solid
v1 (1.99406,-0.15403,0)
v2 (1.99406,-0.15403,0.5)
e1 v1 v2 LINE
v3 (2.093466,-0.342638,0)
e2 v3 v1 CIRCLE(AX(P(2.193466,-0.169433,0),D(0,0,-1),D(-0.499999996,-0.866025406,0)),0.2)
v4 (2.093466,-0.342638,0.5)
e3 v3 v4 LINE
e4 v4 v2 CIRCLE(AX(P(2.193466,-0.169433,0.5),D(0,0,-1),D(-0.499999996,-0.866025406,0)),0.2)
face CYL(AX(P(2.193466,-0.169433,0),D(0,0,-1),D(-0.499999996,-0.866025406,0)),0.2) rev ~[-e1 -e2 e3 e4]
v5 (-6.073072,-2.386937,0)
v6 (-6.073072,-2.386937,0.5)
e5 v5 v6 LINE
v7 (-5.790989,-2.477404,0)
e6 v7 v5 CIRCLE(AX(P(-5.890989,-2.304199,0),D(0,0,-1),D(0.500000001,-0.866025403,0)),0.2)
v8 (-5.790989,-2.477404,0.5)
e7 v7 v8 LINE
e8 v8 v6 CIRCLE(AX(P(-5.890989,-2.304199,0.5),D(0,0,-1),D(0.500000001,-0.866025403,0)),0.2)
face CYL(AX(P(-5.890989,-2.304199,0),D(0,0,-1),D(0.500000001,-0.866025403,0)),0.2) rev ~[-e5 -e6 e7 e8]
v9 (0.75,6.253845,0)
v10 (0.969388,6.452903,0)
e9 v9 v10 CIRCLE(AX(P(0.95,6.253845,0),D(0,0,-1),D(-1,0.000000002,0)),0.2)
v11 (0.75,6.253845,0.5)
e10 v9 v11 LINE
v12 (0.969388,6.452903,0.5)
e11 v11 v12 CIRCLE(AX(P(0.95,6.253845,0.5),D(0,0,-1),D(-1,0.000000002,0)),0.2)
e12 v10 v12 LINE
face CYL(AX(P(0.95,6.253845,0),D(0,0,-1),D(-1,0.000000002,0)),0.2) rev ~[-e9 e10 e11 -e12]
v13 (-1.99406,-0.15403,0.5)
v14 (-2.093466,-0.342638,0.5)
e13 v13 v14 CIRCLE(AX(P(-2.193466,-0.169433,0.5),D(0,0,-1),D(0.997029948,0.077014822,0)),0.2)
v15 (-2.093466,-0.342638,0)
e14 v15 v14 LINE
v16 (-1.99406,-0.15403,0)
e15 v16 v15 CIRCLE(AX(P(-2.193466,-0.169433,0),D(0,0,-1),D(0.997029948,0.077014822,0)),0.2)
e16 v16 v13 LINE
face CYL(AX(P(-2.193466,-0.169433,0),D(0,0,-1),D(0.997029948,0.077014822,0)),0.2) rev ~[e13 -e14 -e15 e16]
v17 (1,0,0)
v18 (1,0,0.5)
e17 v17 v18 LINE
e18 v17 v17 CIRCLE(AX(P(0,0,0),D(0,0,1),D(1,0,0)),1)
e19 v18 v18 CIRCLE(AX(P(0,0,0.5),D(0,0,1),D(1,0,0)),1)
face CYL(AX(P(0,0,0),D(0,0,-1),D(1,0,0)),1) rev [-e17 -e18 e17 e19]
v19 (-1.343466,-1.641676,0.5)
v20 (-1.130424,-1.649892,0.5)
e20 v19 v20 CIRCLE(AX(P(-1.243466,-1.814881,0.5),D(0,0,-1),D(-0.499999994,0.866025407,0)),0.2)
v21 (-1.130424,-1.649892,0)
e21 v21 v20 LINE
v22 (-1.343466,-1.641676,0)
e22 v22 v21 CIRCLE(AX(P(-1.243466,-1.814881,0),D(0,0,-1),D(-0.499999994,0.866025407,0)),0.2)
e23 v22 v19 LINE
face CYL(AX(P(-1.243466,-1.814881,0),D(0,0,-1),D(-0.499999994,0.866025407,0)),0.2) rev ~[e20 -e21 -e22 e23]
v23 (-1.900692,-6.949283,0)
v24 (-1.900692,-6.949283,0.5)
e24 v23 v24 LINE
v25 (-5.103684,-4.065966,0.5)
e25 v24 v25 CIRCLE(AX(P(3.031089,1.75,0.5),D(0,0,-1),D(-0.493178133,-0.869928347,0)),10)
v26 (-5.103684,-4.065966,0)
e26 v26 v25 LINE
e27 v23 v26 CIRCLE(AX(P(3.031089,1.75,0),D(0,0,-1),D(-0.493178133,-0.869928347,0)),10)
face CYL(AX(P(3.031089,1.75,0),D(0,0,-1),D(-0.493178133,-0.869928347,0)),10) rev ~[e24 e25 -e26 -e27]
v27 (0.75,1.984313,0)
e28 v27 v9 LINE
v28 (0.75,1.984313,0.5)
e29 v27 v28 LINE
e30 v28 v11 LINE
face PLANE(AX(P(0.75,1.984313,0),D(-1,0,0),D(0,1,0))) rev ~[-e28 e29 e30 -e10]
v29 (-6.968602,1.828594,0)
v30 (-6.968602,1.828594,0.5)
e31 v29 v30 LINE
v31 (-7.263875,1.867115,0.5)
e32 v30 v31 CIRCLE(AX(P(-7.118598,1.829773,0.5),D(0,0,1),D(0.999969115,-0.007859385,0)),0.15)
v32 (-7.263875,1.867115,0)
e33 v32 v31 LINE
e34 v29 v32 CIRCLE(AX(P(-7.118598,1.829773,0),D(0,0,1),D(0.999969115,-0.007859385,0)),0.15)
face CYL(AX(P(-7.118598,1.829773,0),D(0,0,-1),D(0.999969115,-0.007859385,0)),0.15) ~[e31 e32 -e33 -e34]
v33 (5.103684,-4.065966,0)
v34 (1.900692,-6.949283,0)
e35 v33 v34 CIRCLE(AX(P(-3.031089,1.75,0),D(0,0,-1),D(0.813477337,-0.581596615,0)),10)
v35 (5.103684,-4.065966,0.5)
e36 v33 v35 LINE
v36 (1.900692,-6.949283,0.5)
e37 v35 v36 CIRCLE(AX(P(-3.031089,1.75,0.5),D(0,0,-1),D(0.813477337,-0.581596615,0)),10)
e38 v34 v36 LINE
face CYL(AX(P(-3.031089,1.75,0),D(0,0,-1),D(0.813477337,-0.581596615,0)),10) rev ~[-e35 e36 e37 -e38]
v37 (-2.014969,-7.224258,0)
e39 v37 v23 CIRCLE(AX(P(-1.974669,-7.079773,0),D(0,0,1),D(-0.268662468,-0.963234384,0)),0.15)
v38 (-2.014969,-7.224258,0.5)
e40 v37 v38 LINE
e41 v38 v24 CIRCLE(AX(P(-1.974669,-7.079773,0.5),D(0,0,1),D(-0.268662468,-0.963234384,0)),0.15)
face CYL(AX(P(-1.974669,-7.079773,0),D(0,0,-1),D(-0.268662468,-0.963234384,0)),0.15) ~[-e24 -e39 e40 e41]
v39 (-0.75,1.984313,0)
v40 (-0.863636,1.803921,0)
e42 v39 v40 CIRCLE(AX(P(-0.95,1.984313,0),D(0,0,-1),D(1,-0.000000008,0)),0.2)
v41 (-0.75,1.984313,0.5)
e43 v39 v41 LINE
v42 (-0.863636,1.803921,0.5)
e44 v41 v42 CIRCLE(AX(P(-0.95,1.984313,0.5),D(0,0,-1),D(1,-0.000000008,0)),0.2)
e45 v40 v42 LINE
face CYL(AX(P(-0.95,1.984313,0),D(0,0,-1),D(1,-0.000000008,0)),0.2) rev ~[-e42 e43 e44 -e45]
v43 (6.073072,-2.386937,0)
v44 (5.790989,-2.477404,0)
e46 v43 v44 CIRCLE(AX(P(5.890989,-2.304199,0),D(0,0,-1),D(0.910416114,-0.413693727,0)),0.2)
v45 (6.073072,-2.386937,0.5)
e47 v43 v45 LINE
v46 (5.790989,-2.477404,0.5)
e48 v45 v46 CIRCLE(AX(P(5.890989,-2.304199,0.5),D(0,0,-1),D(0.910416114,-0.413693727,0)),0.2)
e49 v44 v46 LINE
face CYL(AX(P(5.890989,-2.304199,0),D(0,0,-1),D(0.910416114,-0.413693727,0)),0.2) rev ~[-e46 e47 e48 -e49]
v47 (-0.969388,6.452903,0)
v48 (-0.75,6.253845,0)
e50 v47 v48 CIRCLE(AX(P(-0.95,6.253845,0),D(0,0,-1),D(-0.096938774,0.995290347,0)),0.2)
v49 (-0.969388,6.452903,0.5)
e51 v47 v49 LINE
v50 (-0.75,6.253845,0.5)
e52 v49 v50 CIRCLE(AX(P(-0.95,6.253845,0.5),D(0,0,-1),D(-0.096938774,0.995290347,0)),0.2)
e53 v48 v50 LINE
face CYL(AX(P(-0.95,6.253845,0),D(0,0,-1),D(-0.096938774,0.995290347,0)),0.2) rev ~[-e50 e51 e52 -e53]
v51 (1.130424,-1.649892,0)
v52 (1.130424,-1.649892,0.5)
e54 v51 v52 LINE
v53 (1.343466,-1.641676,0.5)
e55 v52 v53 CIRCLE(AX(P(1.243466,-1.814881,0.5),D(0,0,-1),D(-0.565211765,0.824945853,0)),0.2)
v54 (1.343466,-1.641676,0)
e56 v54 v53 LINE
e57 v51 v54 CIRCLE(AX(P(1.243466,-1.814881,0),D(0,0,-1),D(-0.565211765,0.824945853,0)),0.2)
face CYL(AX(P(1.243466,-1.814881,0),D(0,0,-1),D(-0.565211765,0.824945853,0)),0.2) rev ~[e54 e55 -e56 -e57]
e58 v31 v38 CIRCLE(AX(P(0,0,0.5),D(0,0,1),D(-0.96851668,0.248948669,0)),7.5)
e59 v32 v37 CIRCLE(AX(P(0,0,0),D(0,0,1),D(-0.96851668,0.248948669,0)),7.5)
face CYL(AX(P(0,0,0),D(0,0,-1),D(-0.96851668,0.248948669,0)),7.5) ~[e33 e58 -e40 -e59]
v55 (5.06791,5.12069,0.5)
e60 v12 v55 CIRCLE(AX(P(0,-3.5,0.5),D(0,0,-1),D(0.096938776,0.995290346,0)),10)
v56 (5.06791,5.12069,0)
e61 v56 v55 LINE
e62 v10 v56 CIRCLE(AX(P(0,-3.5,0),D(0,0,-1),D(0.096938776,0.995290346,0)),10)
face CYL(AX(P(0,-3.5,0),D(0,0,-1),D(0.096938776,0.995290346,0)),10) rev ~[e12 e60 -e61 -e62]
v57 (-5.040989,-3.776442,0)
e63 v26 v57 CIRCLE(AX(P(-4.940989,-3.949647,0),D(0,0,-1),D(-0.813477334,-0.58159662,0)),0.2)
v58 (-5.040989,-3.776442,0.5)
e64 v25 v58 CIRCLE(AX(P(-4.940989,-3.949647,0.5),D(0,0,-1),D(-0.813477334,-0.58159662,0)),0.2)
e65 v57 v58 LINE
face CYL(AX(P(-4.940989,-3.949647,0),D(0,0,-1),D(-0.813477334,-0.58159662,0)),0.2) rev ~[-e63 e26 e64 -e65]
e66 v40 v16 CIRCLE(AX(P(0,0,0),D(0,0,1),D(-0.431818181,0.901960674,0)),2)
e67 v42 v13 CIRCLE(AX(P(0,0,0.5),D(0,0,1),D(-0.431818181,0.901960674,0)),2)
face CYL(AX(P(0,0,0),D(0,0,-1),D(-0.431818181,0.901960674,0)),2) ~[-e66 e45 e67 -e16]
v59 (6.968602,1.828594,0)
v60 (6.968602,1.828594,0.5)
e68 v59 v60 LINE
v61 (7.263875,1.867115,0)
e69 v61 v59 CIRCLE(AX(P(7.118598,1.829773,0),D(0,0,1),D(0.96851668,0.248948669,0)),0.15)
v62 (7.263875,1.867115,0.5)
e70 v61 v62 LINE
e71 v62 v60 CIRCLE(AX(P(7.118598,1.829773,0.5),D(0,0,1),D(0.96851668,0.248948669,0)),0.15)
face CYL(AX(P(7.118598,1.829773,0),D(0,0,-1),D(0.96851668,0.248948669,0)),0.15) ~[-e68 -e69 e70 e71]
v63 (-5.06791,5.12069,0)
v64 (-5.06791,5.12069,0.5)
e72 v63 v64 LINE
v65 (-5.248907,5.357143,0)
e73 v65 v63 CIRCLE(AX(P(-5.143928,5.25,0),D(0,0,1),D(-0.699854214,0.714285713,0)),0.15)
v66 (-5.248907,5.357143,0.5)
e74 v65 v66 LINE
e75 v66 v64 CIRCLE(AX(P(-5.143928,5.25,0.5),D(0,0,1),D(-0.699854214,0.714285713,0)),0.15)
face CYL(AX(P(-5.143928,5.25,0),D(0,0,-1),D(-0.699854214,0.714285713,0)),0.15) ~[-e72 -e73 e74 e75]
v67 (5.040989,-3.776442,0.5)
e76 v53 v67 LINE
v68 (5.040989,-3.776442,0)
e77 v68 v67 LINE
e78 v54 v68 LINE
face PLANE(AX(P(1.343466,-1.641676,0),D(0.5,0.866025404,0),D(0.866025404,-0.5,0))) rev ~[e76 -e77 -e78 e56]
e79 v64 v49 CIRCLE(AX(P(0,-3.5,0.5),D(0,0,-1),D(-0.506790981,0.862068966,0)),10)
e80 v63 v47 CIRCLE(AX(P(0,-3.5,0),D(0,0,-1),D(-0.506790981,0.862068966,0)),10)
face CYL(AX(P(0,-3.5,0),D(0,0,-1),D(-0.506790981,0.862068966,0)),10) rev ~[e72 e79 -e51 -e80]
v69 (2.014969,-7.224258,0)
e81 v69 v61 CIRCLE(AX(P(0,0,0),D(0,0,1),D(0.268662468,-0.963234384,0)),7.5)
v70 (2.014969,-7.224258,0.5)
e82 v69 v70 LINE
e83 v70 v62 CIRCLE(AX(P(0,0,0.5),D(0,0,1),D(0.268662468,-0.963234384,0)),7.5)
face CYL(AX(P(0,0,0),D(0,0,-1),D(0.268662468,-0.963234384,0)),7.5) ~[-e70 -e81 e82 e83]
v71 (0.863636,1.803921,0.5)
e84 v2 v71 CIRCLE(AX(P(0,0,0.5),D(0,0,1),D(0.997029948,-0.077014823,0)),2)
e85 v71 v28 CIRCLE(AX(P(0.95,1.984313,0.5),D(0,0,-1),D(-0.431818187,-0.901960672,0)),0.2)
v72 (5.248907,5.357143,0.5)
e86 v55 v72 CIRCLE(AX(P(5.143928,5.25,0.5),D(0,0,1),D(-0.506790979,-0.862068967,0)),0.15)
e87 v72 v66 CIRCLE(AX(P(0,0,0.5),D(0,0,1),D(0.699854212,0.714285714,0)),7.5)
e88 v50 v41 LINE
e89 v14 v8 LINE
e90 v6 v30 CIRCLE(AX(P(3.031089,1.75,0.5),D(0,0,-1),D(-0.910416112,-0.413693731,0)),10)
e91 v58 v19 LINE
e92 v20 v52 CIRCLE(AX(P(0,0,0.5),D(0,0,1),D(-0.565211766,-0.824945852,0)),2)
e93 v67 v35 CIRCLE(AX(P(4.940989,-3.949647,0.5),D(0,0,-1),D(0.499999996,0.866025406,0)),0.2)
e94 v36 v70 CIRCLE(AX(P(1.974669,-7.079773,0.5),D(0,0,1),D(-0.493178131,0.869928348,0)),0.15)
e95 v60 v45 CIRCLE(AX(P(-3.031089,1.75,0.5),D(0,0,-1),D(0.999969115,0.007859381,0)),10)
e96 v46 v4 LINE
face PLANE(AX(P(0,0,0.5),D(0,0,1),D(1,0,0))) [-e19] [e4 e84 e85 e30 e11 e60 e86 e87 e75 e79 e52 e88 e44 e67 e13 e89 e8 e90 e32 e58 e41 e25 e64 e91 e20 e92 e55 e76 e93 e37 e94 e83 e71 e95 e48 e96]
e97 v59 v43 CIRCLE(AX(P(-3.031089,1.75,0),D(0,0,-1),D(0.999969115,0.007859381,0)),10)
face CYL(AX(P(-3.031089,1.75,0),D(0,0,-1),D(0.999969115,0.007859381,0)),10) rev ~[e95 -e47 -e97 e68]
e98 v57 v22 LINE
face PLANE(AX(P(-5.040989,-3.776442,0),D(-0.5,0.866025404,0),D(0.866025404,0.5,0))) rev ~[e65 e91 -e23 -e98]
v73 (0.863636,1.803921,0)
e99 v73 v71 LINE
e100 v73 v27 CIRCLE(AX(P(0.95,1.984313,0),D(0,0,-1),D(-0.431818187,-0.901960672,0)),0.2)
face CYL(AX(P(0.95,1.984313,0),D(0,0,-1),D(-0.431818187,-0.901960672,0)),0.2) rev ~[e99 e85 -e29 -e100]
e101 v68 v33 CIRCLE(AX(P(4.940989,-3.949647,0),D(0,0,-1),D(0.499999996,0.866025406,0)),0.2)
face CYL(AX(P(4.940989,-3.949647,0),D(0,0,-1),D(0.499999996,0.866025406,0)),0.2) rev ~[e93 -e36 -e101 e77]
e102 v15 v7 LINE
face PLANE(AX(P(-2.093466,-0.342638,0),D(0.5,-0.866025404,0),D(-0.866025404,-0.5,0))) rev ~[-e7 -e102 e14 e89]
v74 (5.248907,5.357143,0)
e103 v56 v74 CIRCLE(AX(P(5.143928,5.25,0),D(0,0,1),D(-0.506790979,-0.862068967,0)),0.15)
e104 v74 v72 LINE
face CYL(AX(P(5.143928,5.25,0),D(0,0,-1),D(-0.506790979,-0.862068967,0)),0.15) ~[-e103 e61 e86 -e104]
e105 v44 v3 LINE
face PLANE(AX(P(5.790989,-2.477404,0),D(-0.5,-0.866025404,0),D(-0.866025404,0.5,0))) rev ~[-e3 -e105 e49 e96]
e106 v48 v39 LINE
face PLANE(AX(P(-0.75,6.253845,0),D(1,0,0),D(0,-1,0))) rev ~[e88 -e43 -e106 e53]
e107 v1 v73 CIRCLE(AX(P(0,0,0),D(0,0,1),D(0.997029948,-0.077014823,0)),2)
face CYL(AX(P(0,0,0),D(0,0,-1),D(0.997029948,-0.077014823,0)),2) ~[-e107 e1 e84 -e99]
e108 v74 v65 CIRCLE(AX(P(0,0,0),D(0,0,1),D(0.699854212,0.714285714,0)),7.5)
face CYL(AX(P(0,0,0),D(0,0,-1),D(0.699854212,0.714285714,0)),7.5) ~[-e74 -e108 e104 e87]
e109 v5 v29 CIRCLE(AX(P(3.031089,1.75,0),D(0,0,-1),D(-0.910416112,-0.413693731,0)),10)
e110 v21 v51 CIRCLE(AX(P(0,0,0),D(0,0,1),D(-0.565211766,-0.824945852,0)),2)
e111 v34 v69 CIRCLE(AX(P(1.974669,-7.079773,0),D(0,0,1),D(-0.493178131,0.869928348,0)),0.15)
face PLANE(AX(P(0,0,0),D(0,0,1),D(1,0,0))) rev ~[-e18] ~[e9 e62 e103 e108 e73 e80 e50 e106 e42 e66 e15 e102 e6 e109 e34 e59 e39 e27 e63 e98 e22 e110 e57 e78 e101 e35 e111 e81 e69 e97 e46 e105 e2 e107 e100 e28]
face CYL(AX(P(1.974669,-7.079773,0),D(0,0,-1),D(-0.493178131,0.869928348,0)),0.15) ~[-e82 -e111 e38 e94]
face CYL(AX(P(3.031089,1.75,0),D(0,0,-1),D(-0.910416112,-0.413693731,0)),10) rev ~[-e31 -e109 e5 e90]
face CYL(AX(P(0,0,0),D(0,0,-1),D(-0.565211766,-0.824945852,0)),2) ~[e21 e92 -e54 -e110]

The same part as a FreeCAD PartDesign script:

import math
import FreeCAD as App
import Part
import Sketcher
Q = App.Units.Quantity

doc = App.newDocument("Part")
params = doc.addObject("Spreadsheet::Sheet", "Params")
for row, (alias, value) in enumerate([
    ("sketch1_diameter", "2 mm"),
    ("sketch1_radius", "2 mm"),
    ("sketch1_radius2", "10 mm"),
    ("sketch1_radius3", "0.2 mm"),
    ("sketch1_radius4", "7.5 mm"),
    ("pad1_length", "0.5 mm"),
], start=1):
    params.set(f"A{row}", alias)
    params.set(f"B{row}", "=" + value)
    params.setAlias(f"B{row}", alias)

body = doc.addObject("PartDesign::Body", "Body")

# Sketch on XY plane
sketch1 = doc.addObject("Sketcher::SketchObject", "Sketch")
body.addObject(sketch1)
sketch1.AttachmentSupport = (doc.XY_Plane, [""])
sketch1.MapMode = "FlatFace"
sketch1.addGeometry([
    Part.LineSegment(App.Vector(-0.75, 6.253845, 0), App.Vector(-0.75, 1.984313, 0)),  # 0
    Part.ArcOfCircle(Part.Circle(App.Vector(-0.95, 1.984313, 0), App.Vector(0, 0, 1), 0.2), math.radians(-64.416998), math.radians(-0.000001)),  # 1
    Part.ArcOfCircle(Part.Circle(App.Vector(0, 0, 0), App.Vector(0, 0, 1), 2), math.radians(115.583002), math.radians(184.416998)),  # 2
    Part.ArcOfCircle(Part.Circle(App.Vector(-2.193466, -0.169433, 0), App.Vector(0, 0, 1), 0.2), math.radians(-60), math.radians(4.416998)),  # 3
    Part.LineSegment(App.Vector(-2.093466, -0.342638, 0), App.Vector(-5.790989, -2.477404, 0)),  # 4
    Part.ArcOfCircle(Part.Circle(App.Vector(-5.890989, -2.304199, 0), App.Vector(0, 0, 1), 0.2), math.radians(-155.562919), math.radians(-60)),  # 5
    Part.ArcOfCircle(Part.Circle(App.Vector(3.031089, 1.75, 0), App.Vector(0, 0, 1), 10), math.radians(179.549686), math.radians(204.437081)),  # 6
    Part.ArcOfCircle(Part.Circle(App.Vector(-7.118598, 1.829773, 0), App.Vector(0, 0, 1), 0.15), math.radians(-0.450314), math.radians(165.584692)),  # 7
    Part.ArcOfCircle(Part.Circle(App.Vector(0, 0, 0), App.Vector(0, 0, 1), 7.5), math.radians(165.584691), math.radians(254.415309)),  # 8
    Part.ArcOfCircle(Part.Circle(App.Vector(-1.974669, -7.079773, 0), App.Vector(0, 0, 1), 0.15), math.radians(-105.584691), math.radians(60.450314)),  # 9
    Part.ArcOfCircle(Part.Circle(App.Vector(3.031089, 1.75, 0), App.Vector(0, 0, 1), 10), math.radians(-144.437081), math.radians(-119.549686)),  # 10
    Part.ArcOfCircle(Part.Circle(App.Vector(-4.940989, -3.949647, 0), App.Vector(0, 0, 1), 0.2), math.radians(120), math.radians(215.562919)),  # 11
    Part.LineSegment(App.Vector(-5.040989, -3.776442, 0), App.Vector(-1.343466, -1.641676, 0)),  # 12
    Part.ArcOfCircle(Part.Circle(App.Vector(-1.243466, -1.814881, 0), App.Vector(0, 0, 1), 0.2), math.radians(55.583002), math.radians(120)),  # 13
    Part.ArcOfCircle(Part.Circle(App.Vector(0, 0, 0), App.Vector(0, 0, 1), 2), math.radians(-124.416998), math.radians(-55.583002)),  # 14
    Part.ArcOfCircle(Part.Circle(App.Vector(1.243466, -1.814881, 0), App.Vector(0, 0, 1), 0.2), math.radians(60), math.radians(124.416998)),  # 15
    Part.LineSegment(App.Vector(1.343466, -1.641676, 0), App.Vector(5.040989, -3.776442, 0)),  # 16
    Part.ArcOfCircle(Part.Circle(App.Vector(4.940989, -3.949647, 0), App.Vector(0, 0, 1), 0.2), math.radians(-35.562919), math.radians(60)),  # 17
    Part.ArcOfCircle(Part.Circle(App.Vector(-3.031089, 1.75, 0), App.Vector(0, 0, 1), 10), math.radians(-60.450314), math.radians(-35.562919)),  # 18
    Part.ArcOfCircle(Part.Circle(App.Vector(1.974669, -7.079773, 0), App.Vector(0, 0, 1), 0.15), math.radians(119.549686), math.radians(285.584691)),  # 19
    Part.ArcOfCircle(Part.Circle(App.Vector(0, 0, 0), App.Vector(0, 0, 1), 7.5), math.radians(-74.415309), math.radians(14.415309)),  # 20
    Part.ArcOfCircle(Part.Circle(App.Vector(7.118598, 1.829773, 0), App.Vector(0, 0, 1), 0.15), math.radians(14.415308), math.radians(180.450314)),  # 21
    Part.ArcOfCircle(Part.Circle(App.Vector(-3.031089, 1.75, 0), App.Vector(0, 0, 1), 10), math.radians(-24.437081), math.radians(0.450314)),  # 22
    Part.ArcOfCircle(Part.Circle(App.Vector(5.890989, -2.304199, 0), App.Vector(0, 0, 1), 0.2), math.radians(-120), math.radians(-24.437081)),  # 23
    Part.LineSegment(App.Vector(5.790989, -2.477404, 0), App.Vector(2.093466, -0.342638, 0)),  # 24
    Part.ArcOfCircle(Part.Circle(App.Vector(2.193466, -0.169433, 0), App.Vector(0, 0, 1), 0.2), math.radians(175.583002), math.radians(240)),  # 25
    Part.ArcOfCircle(Part.Circle(App.Vector(0, 0, 0), App.Vector(0, 0, 1), 2), math.radians(-4.416998), math.radians(64.416998)),  # 26
    Part.ArcOfCircle(Part.Circle(App.Vector(0.95, 1.984313, 0), App.Vector(0, 0, 1), 0.2), math.radians(-179.999999), math.radians(-115.583002)),  # 27
    Part.LineSegment(App.Vector(0.75, 1.984313, 0), App.Vector(0.75, 6.253845, 0)),  # 28
    Part.ArcOfCircle(Part.Circle(App.Vector(0.95, 6.253845, 0), App.Vector(0, 0, 1), 0.2), math.radians(84.437081), math.radians(180)),  # 29
    Part.ArcOfCircle(Part.Circle(App.Vector(0, -3.5, 0), App.Vector(0, 0, 1), 10), math.radians(59.549686), math.radians(84.437081)),  # 30
    Part.ArcOfCircle(Part.Circle(App.Vector(5.143928, 5.25, 0), App.Vector(0, 0, 1), 0.15), math.radians(-120.450314), math.radians(45.584691)),  # 31
    Part.ArcOfCircle(Part.Circle(App.Vector(0, 0, 0), App.Vector(0, 0, 1), 7.5), math.radians(45.584691), math.radians(134.415309)),  # 32
    Part.ArcOfCircle(Part.Circle(App.Vector(-5.143928, 5.25, 0), App.Vector(0, 0, 1), 0.15), math.radians(134.415309), math.radians(300.450314)),  # 33
    Part.ArcOfCircle(Part.Circle(App.Vector(0, -3.5, 0), App.Vector(0, 0, 1), 10), math.radians(95.562919), math.radians(120.450314)),  # 34
    Part.ArcOfCircle(Part.Circle(App.Vector(-0.95, 6.253845, 0), App.Vector(0, 0, 1), 0.2), math.radians(0), math.radians(95.562919)),  # 35
    Part.Circle(App.Vector(0, 0, 0), App.Vector(0, 0, 1), 1),  # 36
], False)
sketch1.addConstraint([
    Sketcher.Constraint("Tangent", 0, 2, 1, 2),
    Sketcher.Constraint("Tangent", 1, 1, 2, 1),
    Sketcher.Constraint("Tangent", 2, 2, 3, 2),
    Sketcher.Constraint("Tangent", 3, 1, 4, 1),
    Sketcher.Constraint("Tangent", 4, 2, 5, 2),
    Sketcher.Constraint("Tangent", 5, 1, 6, 2),
    Sketcher.Constraint("Tangent", 6, 1, 7, 1),
    Sketcher.Constraint("Tangent", 7, 2, 8, 1),
    Sketcher.Constraint("Tangent", 8, 2, 9, 1),
    Sketcher.Constraint("Tangent", 9, 2, 10, 2),
    Sketcher.Constraint("Tangent", 10, 1, 11, 2),
    Sketcher.Constraint("Tangent", 11, 1, 12, 1),
    Sketcher.Constraint("Tangent", 12, 2, 13, 2),
    Sketcher.Constraint("Tangent", 13, 1, 14, 1),
    Sketcher.Constraint("Tangent", 14, 2, 15, 2),
    Sketcher.Constraint("Tangent", 15, 1, 16, 1),
    Sketcher.Constraint("Tangent", 16, 2, 17, 2),
    Sketcher.Constraint("Tangent", 17, 1, 18, 2),
    Sketcher.Constraint("Tangent", 18, 1, 19, 1),
    Sketcher.Constraint("Tangent", 19, 2, 20, 1),
    Sketcher.Constraint("Tangent", 20, 2, 21, 1),
    Sketcher.Constraint("Tangent", 21, 2, 22, 2),
    Sketcher.Constraint("Tangent", 22, 1, 23, 2),
    Sketcher.Constraint("Tangent", 23, 1, 24, 1),
    Sketcher.Constraint("Tangent", 24, 2, 25, 2),
    Sketcher.Constraint("Tangent", 25, 1, 26, 1),
    Sketcher.Constraint("Tangent", 26, 2, 27, 2),
    Sketcher.Constraint("Tangent", 27, 1, 28, 1),
    Sketcher.Constraint("Tangent", 28, 2, 29, 2),
    Sketcher.Constraint("Tangent", 29, 1, 30, 2),
    Sketcher.Constraint("Tangent", 30, 1, 31, 1),
    Sketcher.Constraint("Tangent", 31, 2, 32, 1),
    Sketcher.Constraint("Tangent", 32, 2, 33, 1),
    Sketcher.Constraint("Tangent", 33, 2, 34, 2),
    Sketcher.Constraint("Tangent", 34, 1, 35, 2),
    Sketcher.Constraint("Tangent", 35, 1, 0, 1),
    Sketcher.Constraint("Vertical", 0),
    Sketcher.Constraint("Vertical", 28),
    Sketcher.Constraint("Coincident", 2, 3, -1, 1),
    Sketcher.Constraint("Coincident", 8, 3, -1, 1),
    Sketcher.Constraint("Coincident", 14, 3, -1, 1),
    Sketcher.Constraint("Coincident", 20, 3, -1, 1),
    Sketcher.Constraint("Coincident", 26, 3, -1, 1),
    Sketcher.Constraint("Coincident", 32, 3, -1, 1),
    Sketcher.Constraint("Coincident", 36, 3, -1, 1),
    Sketcher.Constraint("Coincident", 10, 3, 6, 3),
    Sketcher.Constraint("Coincident", 22, 3, 18, 3),
    Sketcher.Constraint("Coincident", 34, 3, 30, 3),
    Sketcher.Constraint("Equal", 1, 3),
    Sketcher.Constraint("Equal", 3, 5),
    Sketcher.Constraint("Equal", 7, 9),
    Sketcher.Constraint("Equal", 6, 10),
    Sketcher.Constraint("Equal", 5, 11),
    Sketcher.Constraint("Equal", 11, 13),
    Sketcher.Constraint("Equal", 2, 14),
    Sketcher.Constraint("Equal", 13, 15),
    Sketcher.Constraint("Equal", 15, 17),
    Sketcher.Constraint("Equal", 10, 18),
    Sketcher.Constraint("Equal", 9, 19),
    Sketcher.Constraint("Equal", 8, 20),
    Sketcher.Constraint("Equal", 19, 21),
    Sketcher.Constraint("Equal", 18, 22),
    Sketcher.Constraint("Equal", 17, 23),
    Sketcher.Constraint("Equal", 23, 25),
    Sketcher.Constraint("Equal", 14, 26),
    Sketcher.Constraint("Equal", 25, 27),
    Sketcher.Constraint("Equal", 27, 29),
    Sketcher.Constraint("Equal", 22, 30),
    Sketcher.Constraint("Equal", 21, 31),
    Sketcher.Constraint("Equal", 20, 32),
    Sketcher.Constraint("Equal", 31, 33),
    Sketcher.Constraint("Equal", 30, 34),
    Sketcher.Constraint("Equal", 29, 35),
    Sketcher.Constraint("Symmetric", 11, 3, 17, 3, -2),
    Sketcher.Constraint("Symmetric", 5, 3, 23, 3, -2),
    Sketcher.Constraint("Symmetric", 29, 3, 35, 3, -2),
    Sketcher.Constraint("Parallel", 4, 12),
    Sketcher.Constraint("Parallel", 16, 24),
    Sketcher.Constraint("Horizontal", 13, 3, 15, 3),
    Sketcher.Constraint("Equal", 4, 12),
    Sketcher.Constraint("Diameter", 36, Q("2 mm")),
    Sketcher.Constraint("Radius", 2, Q("2 mm")),
    Sketcher.Constraint("Radius", 6, Q("10 mm")),
    Sketcher.Constraint("Radius", 1, Q("0.2 mm")),
    Sketcher.Constraint("Radius", 8, Q("7.5 mm")),
    Sketcher.Constraint("Angle", 4, Q("-150 deg")),
    Sketcher.Constraint("Radius", 7, Q("0.15 mm")),
    Sketcher.Constraint("DistanceY", 30, 3, -1, 1, Q("3.5 mm")),
    Sketcher.Constraint("DistanceX", 1, 3, -1, 1, Q("0.95 mm")),
    Sketcher.Constraint("DistanceY", -1, 1, 6, 3, Q("1.75 mm")),
    Sketcher.Constraint("DistanceY", 5, 3, -1, 1, Q("2.304199 mm")),
    Sketcher.Constraint("Distance", 4, Q("4.269532 mm")),
])
sketch1.setExpression("Constraints[80]", "Params.sketch1_diameter")
sketch1.setExpression("Constraints[81]", "Params.sketch1_radius")
sketch1.setExpression("Constraints[82]", "Params.sketch1_radius2")
sketch1.setExpression("Constraints[83]", "Params.sketch1_radius3")
sketch1.setExpression("Constraints[84]", "Params.sketch1_radius4")
pad1 = doc.addObject("PartDesign::Pad", "Pad")
body.addObject(pad1)
pad1.Profile = sketch1
pad1.setExpression("Length", "Params.pad1_length")

doc.recompute()
